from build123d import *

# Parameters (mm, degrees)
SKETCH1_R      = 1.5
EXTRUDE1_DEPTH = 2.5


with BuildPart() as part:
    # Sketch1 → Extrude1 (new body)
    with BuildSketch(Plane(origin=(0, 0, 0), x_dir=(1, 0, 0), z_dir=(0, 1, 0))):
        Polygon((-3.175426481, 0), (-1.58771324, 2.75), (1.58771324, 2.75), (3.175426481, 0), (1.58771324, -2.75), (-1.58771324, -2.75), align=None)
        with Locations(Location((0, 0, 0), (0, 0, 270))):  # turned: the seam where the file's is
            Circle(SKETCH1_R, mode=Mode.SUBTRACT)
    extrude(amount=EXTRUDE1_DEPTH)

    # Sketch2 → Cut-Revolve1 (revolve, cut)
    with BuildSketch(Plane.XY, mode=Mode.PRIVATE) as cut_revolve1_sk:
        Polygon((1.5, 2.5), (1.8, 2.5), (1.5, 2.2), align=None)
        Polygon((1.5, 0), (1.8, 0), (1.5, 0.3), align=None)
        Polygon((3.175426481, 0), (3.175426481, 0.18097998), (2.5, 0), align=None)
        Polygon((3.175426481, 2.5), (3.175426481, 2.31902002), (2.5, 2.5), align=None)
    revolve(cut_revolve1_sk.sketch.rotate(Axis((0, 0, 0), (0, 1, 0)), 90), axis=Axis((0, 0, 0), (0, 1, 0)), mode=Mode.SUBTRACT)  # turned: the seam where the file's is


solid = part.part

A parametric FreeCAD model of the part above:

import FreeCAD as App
import Part
import Sketcher
from FreeCAD import Vector
Q = App.Units.Quantity


def add_polygon(sketch, points):
    """Adds a closed chain of lines whose ends are joined by coincident constraints."""
    first, n = sketch.GeometryCount, len(points)
    for a, b in zip(points, points[1:] + points[:1]):
        sketch.addGeometry(Part.LineSegment(App.Vector(*a, 0), App.Vector(*b, 0)), False)
    for i in range(n):
        sketch.addConstraint(Sketcher.Constraint("Coincident", first + i, 2, first + (i + 1) % n, 1))

doc = App.newDocument("Part")
body = doc.addObject("PartDesign::Body", "Body")

sketch1 = body.newObject("Sketcher::SketchObject", "Sketch")
sketch1.AttachmentSupport = (doc.getObject("XZ_Plane"), [""])
sketch1.MapMode = "FlatFace"
add_polygon(sketch1, [(-1.6, -2.8), (-3.2, 0), (-1.6, 2.8), (1.6, 2.8), (3.2, 0), (1.6, -2.8)])
sketch1.addGeometry(Part.Circle(Vector(0, 0, 0), Vector(0, 0, 1), 1.5), False)
sketch1.addConstraint(Sketcher.Constraint("Horizontal", 2))
sketch1.addConstraint(Sketcher.Constraint("Horizontal", 5))
sketch1.addConstraint(Sketcher.Constraint("Coincident", 6, 3, -1, 1))
sketch1.addConstraint(Sketcher.Constraint("Symmetric", 0, 2, 3, 2, -1, 1))
sketch1.addConstraint(Sketcher.Constraint("Symmetric", 1, 2, 4, 2, -1, 1))
sketch1.addConstraint(Sketcher.Constraint("PointOnObject", 0, 2, -1))
sketch1.addConstraint(Sketcher.Constraint("Parallel", 0, 3))
sketch1.addConstraint(Sketcher.Constraint("Vertical", 2, 2, 4, 2))
sketch1.addConstraint(Sketcher.Constraint("Diameter", 6, 3.0))
sketch1.addConstraint(Sketcher.Constraint("Angle", 0, Q("120 deg")))
sketch1.addConstraint(Sketcher.Constraint("DistanceY", 4, 2, 2, 2, 5.5))
sketch1.addConstraint(Sketcher.Constraint("DistanceX", 2, 1, 2, 2, 3.175426))
pad1 = body.newObject("PartDesign::Pad", "Pad")
pad1.Profile = sketch1
pad1.Length = 2.5
pad1.Reversed = True

sketch2 = body.newObject("Sketcher::SketchObject", "Sketch001")
sketch2.AttachmentSupport = (doc.getObject("XY_Plane"), [""])
sketch2.MapMode = "FlatFace"
add_polygon(sketch2, [(1.8, 2.5), (1.5, 2.5), (1.5, 2.2)])
add_polygon(sketch2, [(1.5, 0), (1.8, 0), (1.5, 0.3)])
add_polygon(sketch2, [(3.18, 0), (3.18, 0.18), (2.5, 0)])
add_polygon(sketch2, [(3.18, 2.32), (3.18, 2.5), (2.5, 2.5)])
sketch2.addConstraint(Sketcher.Constraint("Horizontal", 0))
sketch2.addConstraint(Sketcher.Constraint("Vertical", 1))
sketch2.addConstraint(Sketcher.Constraint("Horizontal", 3))
sketch2.addConstraint(Sketcher.Constraint("Vertical", 5))
sketch2.addConstraint(Sketcher.Constraint("Vertical", 6))
sketch2.addConstraint(Sketcher.Constraint("Horizontal", 8))
sketch2.addConstraint(Sketcher.Constraint("Vertical", 9))
sketch2.addConstraint(Sketcher.Constraint("Horizontal", 10))
sketch2.addConstraint(Sketcher.Constraint("PointOnObject", 3, 2, -1))
sketch2.addConstraint(Sketcher.Constraint("PointOnObject", 7, 2, -1))
sketch2.addConstraint(Sketcher.Constraint("Perpendicular", 2, 4))
sketch2.addConstraint(Sketcher.Constraint("Horizontal", 2, 2, 9, 2))
sketch2.addConstraint(Sketcher.Constraint("Vertical", 2, 2, 3, 2))
sketch2.addConstraint(Sketcher.Constraint("Vertical", 1, 2, 4, 2))
sketch2.addConstraint(Sketcher.Constraint("Vertical", 8, 2, 9, 2))
sketch2.addConstraint(Sketcher.Constraint("Vertical", 7, 2, 10, 2))
sketch2.addConstraint(Sketcher.Constraint("Equal", 3, 1))
sketch2.addConstraint(Sketcher.Constraint("Equal", 6, 9))
sketch2.addConstraint(Sketcher.Constraint("Angle", 7, Q("-165 deg")))
sketch2.addConstraint(Sketcher.Constraint("DistanceX", 0, 2, 0, 1, 0.3))
sketch2.addConstraint(Sketcher.Constraint("DistanceX", 5, 2, 7, 2, 1.0))
sketch2.addConstraint(Sketcher.Constraint("DistanceX", -1, 1, 0, 2, 1.5))
sketch2.addConstraint(Sketcher.Constraint("DistanceY", -1, 1, 0, 2, 2.5))
sketch2.addConstraint(Sketcher.Constraint("DistanceY", 6, 1, 6, 2, 0.18098))
groove = body.newObject("PartDesign::Groove", "Groove")
groove.Profile = sketch2
groove.ReferenceAxis = (sketch2, ["V_Axis"])
groove.Angle = 360

doc.recompute()
